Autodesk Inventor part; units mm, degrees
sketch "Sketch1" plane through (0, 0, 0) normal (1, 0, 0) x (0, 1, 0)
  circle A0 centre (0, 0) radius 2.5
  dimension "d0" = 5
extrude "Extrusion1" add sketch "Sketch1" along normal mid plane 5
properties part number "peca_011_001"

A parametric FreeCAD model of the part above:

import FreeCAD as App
import Part
import Sketcher

V = App.Vector

doc = App.newDocument("Part")
body = doc.addObject("PartDesign::Body", "Body")

# Sketch on YZ plane
sketch1 = body.newObject("Sketcher::SketchObject", "Sketch")
sketch1.AttachmentSupport = (doc.getObject("YZ_Plane"), [""])
sketch1.MapMode = "FlatFace"
sketch1.addGeometry(Part.Circle(V(0, 0, 0), V(0, 0, 1), 2.5), False)
sketch1.addConstraint([
    Sketcher.Constraint("Coincident", 0, 3, -1, 1),
    Sketcher.Constraint("Diameter", 0, 5.0),
])
pad1 = body.newObject("PartDesign::Pad", "Pad")
pad1.Profile = sketch1
pad1.Length = 5
pad1.Midplane = True

doc.recompute()
